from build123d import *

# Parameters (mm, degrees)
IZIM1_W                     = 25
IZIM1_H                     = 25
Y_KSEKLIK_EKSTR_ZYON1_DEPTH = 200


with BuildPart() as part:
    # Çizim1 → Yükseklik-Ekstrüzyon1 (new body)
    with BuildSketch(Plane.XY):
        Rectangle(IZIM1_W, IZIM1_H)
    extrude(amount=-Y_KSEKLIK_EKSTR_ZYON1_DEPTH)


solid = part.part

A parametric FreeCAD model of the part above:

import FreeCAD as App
import Part
import Sketcher

V = App.Vector
Q = App.Units.Quantity


def add_polygon(sketch, points):
    """Adds a closed chain of lines whose ends are joined by coincident constraints."""
    first, n = sketch.GeometryCount, len(points)
    for a, b in zip(points, points[1:] + points[:1]):
        sketch.addGeometry(Part.LineSegment(App.Vector(*a, 0), App.Vector(*b, 0)), False)
    for i in range(n):
        sketch.addConstraint(Sketcher.Constraint("Coincident", first + i, 2, first + (i + 1) % n, 1))

doc = App.newDocument("Part")
body = doc.addObject("PartDesign::Body", "Body")

sketch1 = body.newObject("Sketcher::SketchObject", "Sketch")
sketch1.AttachmentSupport = (doc.getObject("XY_Plane"), [""])
sketch1.MapMode = "FlatFace"
add_polygon(sketch1, [(-12, 12), (-12, -12), (12, -12), (12, 12)])
sketch1.addConstraint([
    Sketcher.Constraint("Vertical", 0),
    Sketcher.Constraint("Horizontal", 1),
    Sketcher.Constraint("Vertical", 2),
    Sketcher.Constraint("Horizontal", 3),
    Sketcher.Constraint("Symmetric", 0, 2, 2, 2, -1, 1),
    Sketcher.Constraint("Equal", 3, 0),
    Sketcher.Constraint("DistanceX", 1, 1, 1, 2, Q("25 mm")),
])
pad1 = body.newObject("PartDesign::Pad", "Pad")
pad1.Profile = sketch1
pad1.Length = 200
pad1.Reversed = True

doc.recompute()
